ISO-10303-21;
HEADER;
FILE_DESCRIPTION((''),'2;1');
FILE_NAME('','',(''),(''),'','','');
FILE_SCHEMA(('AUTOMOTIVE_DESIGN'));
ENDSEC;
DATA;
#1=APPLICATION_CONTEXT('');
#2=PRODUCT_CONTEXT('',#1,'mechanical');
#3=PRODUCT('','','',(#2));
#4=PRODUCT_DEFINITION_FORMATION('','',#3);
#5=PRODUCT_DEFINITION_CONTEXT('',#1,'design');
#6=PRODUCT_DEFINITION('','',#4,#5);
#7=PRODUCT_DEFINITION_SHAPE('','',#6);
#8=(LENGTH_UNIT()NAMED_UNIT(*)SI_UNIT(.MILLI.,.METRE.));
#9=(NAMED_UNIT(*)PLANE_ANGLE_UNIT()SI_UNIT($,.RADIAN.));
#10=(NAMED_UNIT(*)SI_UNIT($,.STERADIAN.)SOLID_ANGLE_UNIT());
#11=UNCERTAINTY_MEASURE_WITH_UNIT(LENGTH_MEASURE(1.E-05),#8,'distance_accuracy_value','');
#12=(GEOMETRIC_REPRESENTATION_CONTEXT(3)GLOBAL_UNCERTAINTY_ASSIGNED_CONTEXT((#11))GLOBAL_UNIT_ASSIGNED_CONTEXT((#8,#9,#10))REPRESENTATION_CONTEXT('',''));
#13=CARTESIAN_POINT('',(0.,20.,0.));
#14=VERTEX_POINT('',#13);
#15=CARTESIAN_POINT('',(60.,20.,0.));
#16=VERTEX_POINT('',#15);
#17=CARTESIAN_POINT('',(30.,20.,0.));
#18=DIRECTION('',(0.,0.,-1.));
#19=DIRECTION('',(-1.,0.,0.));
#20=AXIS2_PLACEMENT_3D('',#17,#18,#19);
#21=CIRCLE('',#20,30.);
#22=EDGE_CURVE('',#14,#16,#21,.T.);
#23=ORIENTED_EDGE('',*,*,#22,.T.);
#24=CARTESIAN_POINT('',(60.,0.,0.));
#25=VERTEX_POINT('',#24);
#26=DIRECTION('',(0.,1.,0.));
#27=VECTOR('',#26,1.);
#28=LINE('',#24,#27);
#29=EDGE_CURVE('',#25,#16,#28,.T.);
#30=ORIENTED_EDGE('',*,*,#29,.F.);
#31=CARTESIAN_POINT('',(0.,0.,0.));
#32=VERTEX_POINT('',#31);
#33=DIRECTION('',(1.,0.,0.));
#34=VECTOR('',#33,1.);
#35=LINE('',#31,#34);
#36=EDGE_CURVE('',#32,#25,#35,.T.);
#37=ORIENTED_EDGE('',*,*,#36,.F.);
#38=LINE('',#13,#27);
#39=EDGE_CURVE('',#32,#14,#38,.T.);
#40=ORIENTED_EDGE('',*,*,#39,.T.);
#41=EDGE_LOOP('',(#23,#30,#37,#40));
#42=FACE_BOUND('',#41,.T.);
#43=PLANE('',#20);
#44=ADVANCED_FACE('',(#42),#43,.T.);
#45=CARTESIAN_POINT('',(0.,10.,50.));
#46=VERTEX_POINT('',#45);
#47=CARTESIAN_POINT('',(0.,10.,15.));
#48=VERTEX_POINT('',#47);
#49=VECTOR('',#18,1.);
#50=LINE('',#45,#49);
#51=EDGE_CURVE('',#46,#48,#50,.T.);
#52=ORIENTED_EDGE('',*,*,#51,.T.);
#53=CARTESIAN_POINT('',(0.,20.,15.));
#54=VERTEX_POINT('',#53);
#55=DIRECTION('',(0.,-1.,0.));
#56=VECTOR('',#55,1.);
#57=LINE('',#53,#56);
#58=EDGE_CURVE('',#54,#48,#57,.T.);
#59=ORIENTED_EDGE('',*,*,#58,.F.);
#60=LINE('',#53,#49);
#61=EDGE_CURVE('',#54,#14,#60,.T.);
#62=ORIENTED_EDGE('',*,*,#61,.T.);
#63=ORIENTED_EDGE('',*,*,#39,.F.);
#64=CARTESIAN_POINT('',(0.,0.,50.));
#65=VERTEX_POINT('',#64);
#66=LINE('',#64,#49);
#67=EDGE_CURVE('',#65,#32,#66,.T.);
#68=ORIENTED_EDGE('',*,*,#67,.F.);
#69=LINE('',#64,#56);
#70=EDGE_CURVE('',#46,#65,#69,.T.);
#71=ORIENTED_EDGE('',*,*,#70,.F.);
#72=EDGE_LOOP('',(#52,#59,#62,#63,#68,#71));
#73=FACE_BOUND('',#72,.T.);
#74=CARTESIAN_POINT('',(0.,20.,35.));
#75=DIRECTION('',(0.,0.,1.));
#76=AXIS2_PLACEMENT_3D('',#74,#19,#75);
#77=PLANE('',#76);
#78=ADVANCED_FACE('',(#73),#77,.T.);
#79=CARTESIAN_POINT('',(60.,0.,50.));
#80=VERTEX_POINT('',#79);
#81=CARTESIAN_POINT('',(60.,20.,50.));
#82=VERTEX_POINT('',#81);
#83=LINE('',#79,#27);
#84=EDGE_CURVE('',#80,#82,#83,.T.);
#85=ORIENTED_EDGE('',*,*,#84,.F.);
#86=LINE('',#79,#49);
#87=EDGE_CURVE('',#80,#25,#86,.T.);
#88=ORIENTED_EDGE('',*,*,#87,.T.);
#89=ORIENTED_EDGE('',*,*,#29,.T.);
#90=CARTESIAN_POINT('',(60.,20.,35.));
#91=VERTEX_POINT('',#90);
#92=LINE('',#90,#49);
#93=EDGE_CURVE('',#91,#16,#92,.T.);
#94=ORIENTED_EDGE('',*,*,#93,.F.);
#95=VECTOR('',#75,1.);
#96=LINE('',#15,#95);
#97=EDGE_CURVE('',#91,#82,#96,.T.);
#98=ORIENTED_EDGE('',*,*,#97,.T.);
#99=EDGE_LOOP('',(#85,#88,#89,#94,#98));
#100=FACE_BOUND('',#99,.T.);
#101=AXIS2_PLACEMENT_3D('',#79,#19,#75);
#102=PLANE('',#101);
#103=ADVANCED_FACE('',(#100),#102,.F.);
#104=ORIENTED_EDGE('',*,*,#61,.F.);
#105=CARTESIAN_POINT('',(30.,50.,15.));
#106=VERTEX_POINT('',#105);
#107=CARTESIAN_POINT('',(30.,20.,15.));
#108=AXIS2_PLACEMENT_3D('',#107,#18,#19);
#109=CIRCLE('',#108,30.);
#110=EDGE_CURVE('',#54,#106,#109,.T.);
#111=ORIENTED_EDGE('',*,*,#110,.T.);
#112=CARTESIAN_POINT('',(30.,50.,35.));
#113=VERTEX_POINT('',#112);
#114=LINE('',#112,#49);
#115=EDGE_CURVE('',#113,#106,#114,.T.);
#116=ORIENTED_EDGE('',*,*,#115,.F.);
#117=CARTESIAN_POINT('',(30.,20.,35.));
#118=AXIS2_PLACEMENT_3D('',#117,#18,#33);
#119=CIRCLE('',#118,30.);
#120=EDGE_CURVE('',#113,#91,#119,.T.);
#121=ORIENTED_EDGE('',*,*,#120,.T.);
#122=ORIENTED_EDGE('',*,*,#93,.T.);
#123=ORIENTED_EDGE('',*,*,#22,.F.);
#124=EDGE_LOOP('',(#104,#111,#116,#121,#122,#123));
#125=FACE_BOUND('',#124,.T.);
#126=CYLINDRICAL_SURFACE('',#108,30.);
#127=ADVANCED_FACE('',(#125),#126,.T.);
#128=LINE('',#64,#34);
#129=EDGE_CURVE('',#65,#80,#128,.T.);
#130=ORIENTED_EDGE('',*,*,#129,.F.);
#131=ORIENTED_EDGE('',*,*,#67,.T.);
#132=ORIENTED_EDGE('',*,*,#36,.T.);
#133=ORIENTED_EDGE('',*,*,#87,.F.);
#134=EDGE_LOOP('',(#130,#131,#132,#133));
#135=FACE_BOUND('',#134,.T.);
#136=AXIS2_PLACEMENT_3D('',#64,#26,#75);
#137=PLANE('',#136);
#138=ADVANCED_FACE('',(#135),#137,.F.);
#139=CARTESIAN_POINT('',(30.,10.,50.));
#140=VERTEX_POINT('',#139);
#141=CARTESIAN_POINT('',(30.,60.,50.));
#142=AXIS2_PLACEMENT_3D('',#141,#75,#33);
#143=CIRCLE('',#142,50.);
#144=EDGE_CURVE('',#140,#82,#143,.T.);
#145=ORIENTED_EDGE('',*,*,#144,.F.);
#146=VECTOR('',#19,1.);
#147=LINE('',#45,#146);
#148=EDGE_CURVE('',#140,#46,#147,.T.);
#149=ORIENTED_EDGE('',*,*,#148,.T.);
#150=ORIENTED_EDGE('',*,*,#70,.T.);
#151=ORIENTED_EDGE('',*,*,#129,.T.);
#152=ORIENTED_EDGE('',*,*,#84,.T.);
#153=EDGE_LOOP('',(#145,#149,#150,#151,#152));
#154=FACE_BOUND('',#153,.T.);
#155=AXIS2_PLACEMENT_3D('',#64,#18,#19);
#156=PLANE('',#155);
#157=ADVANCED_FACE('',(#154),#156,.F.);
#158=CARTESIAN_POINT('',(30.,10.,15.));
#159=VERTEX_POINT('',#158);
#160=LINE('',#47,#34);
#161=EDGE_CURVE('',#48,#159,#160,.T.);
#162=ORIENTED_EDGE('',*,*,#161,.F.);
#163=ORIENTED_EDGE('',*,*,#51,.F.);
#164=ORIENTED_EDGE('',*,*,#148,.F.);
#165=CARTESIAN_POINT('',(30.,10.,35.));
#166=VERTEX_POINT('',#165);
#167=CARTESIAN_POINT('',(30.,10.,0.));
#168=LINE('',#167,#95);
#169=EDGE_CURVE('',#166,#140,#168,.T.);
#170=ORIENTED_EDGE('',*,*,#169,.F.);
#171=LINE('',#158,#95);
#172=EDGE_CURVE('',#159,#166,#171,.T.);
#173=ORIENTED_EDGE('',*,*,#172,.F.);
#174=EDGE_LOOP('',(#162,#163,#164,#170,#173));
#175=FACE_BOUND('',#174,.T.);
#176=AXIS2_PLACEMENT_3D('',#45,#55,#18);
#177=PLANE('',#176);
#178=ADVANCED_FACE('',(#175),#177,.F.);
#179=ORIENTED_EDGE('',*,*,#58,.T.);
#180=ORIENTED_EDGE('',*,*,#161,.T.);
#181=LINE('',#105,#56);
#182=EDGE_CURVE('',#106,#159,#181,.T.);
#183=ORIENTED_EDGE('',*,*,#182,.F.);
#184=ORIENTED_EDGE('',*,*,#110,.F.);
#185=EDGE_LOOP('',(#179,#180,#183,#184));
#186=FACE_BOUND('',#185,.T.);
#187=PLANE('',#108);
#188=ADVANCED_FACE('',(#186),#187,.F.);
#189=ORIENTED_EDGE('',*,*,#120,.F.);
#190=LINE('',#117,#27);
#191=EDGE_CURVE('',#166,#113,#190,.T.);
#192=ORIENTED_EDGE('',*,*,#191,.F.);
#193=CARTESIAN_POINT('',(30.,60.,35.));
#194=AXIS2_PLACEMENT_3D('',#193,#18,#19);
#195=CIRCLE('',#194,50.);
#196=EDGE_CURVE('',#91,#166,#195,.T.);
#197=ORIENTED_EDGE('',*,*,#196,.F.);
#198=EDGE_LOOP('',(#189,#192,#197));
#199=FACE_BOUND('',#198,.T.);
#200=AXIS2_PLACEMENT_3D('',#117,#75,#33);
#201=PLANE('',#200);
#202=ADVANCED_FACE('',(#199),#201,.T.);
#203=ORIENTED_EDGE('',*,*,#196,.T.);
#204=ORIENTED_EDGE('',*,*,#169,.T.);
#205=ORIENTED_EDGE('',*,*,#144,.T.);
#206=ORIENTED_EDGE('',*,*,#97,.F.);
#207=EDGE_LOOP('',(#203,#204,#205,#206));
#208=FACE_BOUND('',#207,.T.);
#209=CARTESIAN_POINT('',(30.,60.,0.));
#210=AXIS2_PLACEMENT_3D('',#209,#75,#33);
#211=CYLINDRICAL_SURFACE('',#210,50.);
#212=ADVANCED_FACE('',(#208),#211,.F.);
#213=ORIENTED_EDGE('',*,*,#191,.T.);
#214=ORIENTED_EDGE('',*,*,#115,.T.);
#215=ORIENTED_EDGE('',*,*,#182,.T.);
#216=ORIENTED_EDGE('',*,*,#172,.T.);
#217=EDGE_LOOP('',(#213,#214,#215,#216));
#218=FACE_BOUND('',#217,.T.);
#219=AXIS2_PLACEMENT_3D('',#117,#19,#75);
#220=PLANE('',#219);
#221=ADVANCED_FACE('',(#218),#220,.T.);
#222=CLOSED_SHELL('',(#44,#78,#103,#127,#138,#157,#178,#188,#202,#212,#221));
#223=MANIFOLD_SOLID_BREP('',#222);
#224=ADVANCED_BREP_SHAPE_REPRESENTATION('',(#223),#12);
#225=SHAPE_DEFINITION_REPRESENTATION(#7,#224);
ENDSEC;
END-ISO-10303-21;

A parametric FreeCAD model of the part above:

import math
import FreeCAD as App
import Part
import Sketcher

V = App.Vector
Q = App.Units.Quantity

doc = App.newDocument("Part")
body = doc.addObject("PartDesign::Body", "Body")

# Sketch on XY plane
sketch1 = doc.addObject("Sketcher::SketchObject", "Sketch")
body.addObject(sketch1)
sketch1.AttachmentSupport = (doc.XY_Plane, [""])
sketch1.MapMode = "FlatFace"
sketch1.addGeometry(Part.LineSegment(V(0, 10, 0), V(0, 0, 0)), False)
sketch1.addGeometry(Part.LineSegment(V(0, 0, 0), V(60, 0, 0)), False)
sketch1.addGeometry(Part.LineSegment(V(60, 0, 0), V(60, 10, 0)), False)
sketch1.addGeometry(Part.LineSegment(V(60, 10, 0), V(0, 10, 0)), False)
sketch1.addConstraint(Sketcher.Constraint("Coincident", 0, 2, 1, 1))
sketch1.addConstraint(Sketcher.Constraint("Coincident", 1, 2, 2, 1))
sketch1.addConstraint(Sketcher.Constraint("Coincident", 2, 2, 3, 1))
sketch1.addConstraint(Sketcher.Constraint("Coincident", 3, 2, 0, 1))
sketch1.addConstraint(Sketcher.Constraint("Vertical", 0))
sketch1.addConstraint(Sketcher.Constraint("Horizontal", 1))
sketch1.addConstraint(Sketcher.Constraint("Vertical", 2))
sketch1.addConstraint(Sketcher.Constraint("Horizontal", 3))
sketch1.addConstraint(Sketcher.Constraint("Coincident", 0, 2, -1, 1))
sketch1.addConstraint(Sketcher.Constraint("DistanceX", 1, 1, 1, 2, Q("60 mm")))
sketch1.addConstraint(Sketcher.Constraint("DistanceY", 0, 2, 0, 1, Q("10 mm")))
pad1 = doc.addObject("PartDesign::Pad", "Pad")
body.addObject(pad1)
pad1.Profile = sketch1
pad1.Length = 50

# Sketch on XY plane
sketch2 = doc.addObject("Sketcher::SketchObject", "Sketch001")
body.addObject(sketch2)
sketch2.AttachmentSupport = (doc.XY_Plane, [""])
sketch2.MapMode = "FlatFace"
sketch2.AttachmentOffset = App.Placement(V(0, 0, 50), App.Rotation())
sketch2.addGeometry(Part.LineSegment(V(30, 10, 0), V(60, 10, 0)), False)
sketch2.addGeometry(Part.LineSegment(V(60, 10, 0), V(60, 20, 0)), False)
sketch2.addGeometry(Part.ArcOfCircle(Part.Circle(V(30, 60, 0), V(0, 0, 1), 50), math.radians(-90), math.radians(-53)), False)
sketch2.addConstraint(Sketcher.Constraint("Coincident", 0, 2, 1, 1))
sketch2.addConstraint(Sketcher.Constraint("Coincident", 1, 2, 2, 2))
sketch2.addConstraint(Sketcher.Constraint("Tangent", 2, 1, 0, 1))
sketch2.addConstraint(Sketcher.Constraint("Horizontal", 0))
sketch2.addConstraint(Sketcher.Constraint("Vertical", 1))
sketch2.addConstraint(Sketcher.Constraint("Radius", 2, Q("50 mm")))
sketch2.addConstraint(Sketcher.Constraint("DistanceX", 0, 1, 0, 2, Q("30 mm")))
sketch2.addConstraint(Sketcher.Constraint("DistanceX", -1, 1, 2, 3, Q("30 mm")))
sketch2.addConstraint(Sketcher.Constraint("DistanceY", -1, 1, 2, 3, Q("60 mm")))
pad2 = doc.addObject("PartDesign::Pad", "Pad001")
body.addObject(pad2)
pad2.Profile = sketch2
pad2.Length = 50
pad2.Reversed = True
body2 = doc.addObject("PartDesign::Body", "Body001")

# Sketch on XY plane
sketch3 = doc.addObject("Sketcher::SketchObject", "Sketch002")
body2.addObject(sketch3)
sketch3.AttachmentSupport = (doc.getObject("XY_Plane001"), [""])
sketch3.MapMode = "FlatFace"
sketch3.addGeometry(Part.LineSegment(V(30, 50, 0), V(30, 20, 0)), False)
sketch3.addGeometry(Part.LineSegment(V(30, 20, 0), V(0, 20, 0)), False)
sketch3.addGeometry(Part.ArcOfCircle(Part.Circle(V(30, 20, 0), V(0, 0, 1), 30), math.radians(90), math.radians(180)), False)
sketch3.addConstraint(Sketcher.Constraint("Coincident", 0, 2, 1, 1))
sketch3.addConstraint(Sketcher.Constraint("Coincident", 1, 2, 2, 2))
sketch3.addConstraint(Sketcher.Constraint("Coincident", 2, 1, 0, 1))
sketch3.addConstraint(Sketcher.Constraint("Vertical", 0))
sketch3.addConstraint(Sketcher.Constraint("Horizontal", 1))
sketch3.addConstraint(Sketcher.Constraint("Coincident", 0, 2, 2, 3))
sketch3.addConstraint(Sketcher.Constraint("PointOnObject", 1, 2, -2))
sketch3.addConstraint(Sketcher.Constraint("Radius", 2, Q("30 mm")))
sketch3.addConstraint(Sketcher.Constraint("DistanceY", -1, 1, 2, 3, Q("20 mm")))
pad3 = doc.addObject("PartDesign::Pad", "Pad002")
body2.addObject(pad3)
pad3.Profile = sketch3
pad3.Length = 15

# Sketch on XY plane
sketch4 = doc.addObject("Sketcher::SketchObject", "Sketch003")
body2.addObject(sketch4)
sketch4.AttachmentSupport = (doc.getObject("XY_Plane001"), [""])
sketch4.MapMode = "FlatFace"
sketch4.addGeometry(Part.LineSegment(V(60, 20, 0), V(30, 20, 0)), False)
sketch4.addGeometry(Part.LineSegment(V(30, 20, 0), V(30, 50, 0)), False)
sketch4.addGeometry(Part.ArcOfCircle(Part.Circle(V(30, 20, 0), V(0, 0, 1), 30), math.radians(0), math.radians(90)), False)
sketch4.addConstraint(Sketcher.Constraint("Coincident", 0, 2, 1, 1))
sketch4.addConstraint(Sketcher.Constraint("Coincident", 1, 2, 2, 2))
sketch4.addConstraint(Sketcher.Constraint("Coincident", 2, 1, 0, 1))
sketch4.addConstraint(Sketcher.Constraint("Horizontal", 0))
sketch4.addConstraint(Sketcher.Constraint("Vertical", 1))
sketch4.addConstraint(Sketcher.Constraint("Coincident", 0, 2, 2, 3))
sketch4.addConstraint(Sketcher.Constraint("Radius", 2, Q("30 mm")))
sketch4.addConstraint(Sketcher.Constraint("DistanceX", -1, 1, 2, 3, Q("30 mm")))
sketch4.addConstraint(Sketcher.Constraint("DistanceY", -1, 1, 2, 3, Q("20 mm")))
pad4 = doc.addObject("PartDesign::Pad", "Pad003")
body2.addObject(pad4)
pad4.Profile = sketch4
pad4.Length = 35
body.AllowCompound = True
doc.recompute()

boolean = doc.addObject("PartDesign::Boolean", "Boolean")
body.addObject(boolean)
boolean.Type = "Fuse"
boolean.addObjects([body2])

# Sketch on XY plane
sketch5 = doc.addObject("Sketcher::SketchObject", "Sketch004")
body.addObject(sketch5)
sketch5.AttachmentSupport = (doc.XY_Plane, [""])
sketch5.MapMode = "FlatFace"
sketch5.addGeometry(Part.LineSegment(V(0, 20, 0), V(60, 20, 0)), False)
sketch5.addGeometry(Part.ArcOfCircle(Part.Circle(V(30, 60, 0), V(0, 0, 1), 50), math.radians(-90), math.radians(-53)), False)
sketch5.addGeometry(Part.LineSegment(V(30, 10, 0), V(0, 10, 0)), False)
sketch5.addGeometry(Part.LineSegment(V(0, 10, 0), V(0, 20, 0)), False)
sketch5.addConstraint(Sketcher.Constraint("Coincident", 0, 2, 1, 2))
sketch5.addConstraint(Sketcher.Constraint("Tangent", 1, 1, 2, 1))
sketch5.addConstraint(Sketcher.Constraint("Coincident", 2, 2, 3, 1))
sketch5.addConstraint(Sketcher.Constraint("Coincident", 3, 2, 0, 1))
sketch5.addConstraint(Sketcher.Constraint("Horizontal", 0))
sketch5.addConstraint(Sketcher.Constraint("Horizontal", 2))
sketch5.addConstraint(Sketcher.Constraint("Vertical", 3))
sketch5.addConstraint(Sketcher.Constraint("PointOnObject", 2, 2, -2))
sketch5.addConstraint(Sketcher.Constraint("Radius", 1, Q("50 mm")))
sketch5.addConstraint(Sketcher.Constraint("DistanceX", 0, 1, 0, 2, Q("60 mm")))
sketch5.addConstraint(Sketcher.Constraint("DistanceX", 2, 2, 2, 1, Q("30 mm")))
sketch5.addConstraint(Sketcher.Constraint("DistanceY", -1, 1, 1, 3, Q("60 mm")))
pad5 = doc.addObject("PartDesign::Pad", "Pad004")
body.addObject(pad5)
pad5.Profile = sketch5
pad5.Length = 35

# Sketch on XY plane
sketch6 = doc.addObject("Sketcher::SketchObject", "Sketch005")
body.addObject(sketch6)
sketch6.AttachmentSupport = (doc.XY_Plane, [""])
sketch6.MapMode = "FlatFace"
sketch6.AttachmentOffset = App.Placement(V(0, 0, 35), App.Rotation())
sketch6.addGeometry(Part.LineSegment(V(0, 20, 0), V(0, 10, 0)), False)
sketch6.addGeometry(Part.LineSegment(V(0, 10, 0), V(30, 10, 0)), False)
sketch6.addGeometry(Part.LineSegment(V(30, 10, 0), V(30, 20, 0)), False)
sketch6.addGeometry(Part.LineSegment(V(30, 20, 0), V(0, 20, 0)), False)
sketch6.addConstraint(Sketcher.Constraint("Coincident", 0, 2, 1, 1))
sketch6.addConstraint(Sketcher.Constraint("Coincident", 1, 2, 2, 1))
sketch6.addConstraint(Sketcher.Constraint("Coincident", 2, 2, 3, 1))
sketch6.addConstraint(Sketcher.Constraint("Coincident", 3, 2, 0, 1))
sketch6.addConstraint(Sketcher.Constraint("Vertical", 0))
sketch6.addConstraint(Sketcher.Constraint("Horizontal", 1))
sketch6.addConstraint(Sketcher.Constraint("Vertical", 2))
sketch6.addConstraint(Sketcher.Constraint("Horizontal", 3))
sketch6.addConstraint(Sketcher.Constraint("PointOnObject", 0, 2, -2))
sketch6.addConstraint(Sketcher.Constraint("DistanceX", 1, 1, 1, 2, Q("30 mm")))
sketch6.addConstraint(Sketcher.Constraint("DistanceY", 0, 2, 0, 1, Q("10 mm")))
sketch6.addConstraint(Sketcher.Constraint("DistanceY", -1, 1, 0, 2, Q("10 mm")))
pocket1 = doc.addObject("PartDesign::Pocket", "Pocket")
body.addObject(pocket1)
pocket1.Profile = sketch6
pocket1.Length = 20

doc.recompute()
